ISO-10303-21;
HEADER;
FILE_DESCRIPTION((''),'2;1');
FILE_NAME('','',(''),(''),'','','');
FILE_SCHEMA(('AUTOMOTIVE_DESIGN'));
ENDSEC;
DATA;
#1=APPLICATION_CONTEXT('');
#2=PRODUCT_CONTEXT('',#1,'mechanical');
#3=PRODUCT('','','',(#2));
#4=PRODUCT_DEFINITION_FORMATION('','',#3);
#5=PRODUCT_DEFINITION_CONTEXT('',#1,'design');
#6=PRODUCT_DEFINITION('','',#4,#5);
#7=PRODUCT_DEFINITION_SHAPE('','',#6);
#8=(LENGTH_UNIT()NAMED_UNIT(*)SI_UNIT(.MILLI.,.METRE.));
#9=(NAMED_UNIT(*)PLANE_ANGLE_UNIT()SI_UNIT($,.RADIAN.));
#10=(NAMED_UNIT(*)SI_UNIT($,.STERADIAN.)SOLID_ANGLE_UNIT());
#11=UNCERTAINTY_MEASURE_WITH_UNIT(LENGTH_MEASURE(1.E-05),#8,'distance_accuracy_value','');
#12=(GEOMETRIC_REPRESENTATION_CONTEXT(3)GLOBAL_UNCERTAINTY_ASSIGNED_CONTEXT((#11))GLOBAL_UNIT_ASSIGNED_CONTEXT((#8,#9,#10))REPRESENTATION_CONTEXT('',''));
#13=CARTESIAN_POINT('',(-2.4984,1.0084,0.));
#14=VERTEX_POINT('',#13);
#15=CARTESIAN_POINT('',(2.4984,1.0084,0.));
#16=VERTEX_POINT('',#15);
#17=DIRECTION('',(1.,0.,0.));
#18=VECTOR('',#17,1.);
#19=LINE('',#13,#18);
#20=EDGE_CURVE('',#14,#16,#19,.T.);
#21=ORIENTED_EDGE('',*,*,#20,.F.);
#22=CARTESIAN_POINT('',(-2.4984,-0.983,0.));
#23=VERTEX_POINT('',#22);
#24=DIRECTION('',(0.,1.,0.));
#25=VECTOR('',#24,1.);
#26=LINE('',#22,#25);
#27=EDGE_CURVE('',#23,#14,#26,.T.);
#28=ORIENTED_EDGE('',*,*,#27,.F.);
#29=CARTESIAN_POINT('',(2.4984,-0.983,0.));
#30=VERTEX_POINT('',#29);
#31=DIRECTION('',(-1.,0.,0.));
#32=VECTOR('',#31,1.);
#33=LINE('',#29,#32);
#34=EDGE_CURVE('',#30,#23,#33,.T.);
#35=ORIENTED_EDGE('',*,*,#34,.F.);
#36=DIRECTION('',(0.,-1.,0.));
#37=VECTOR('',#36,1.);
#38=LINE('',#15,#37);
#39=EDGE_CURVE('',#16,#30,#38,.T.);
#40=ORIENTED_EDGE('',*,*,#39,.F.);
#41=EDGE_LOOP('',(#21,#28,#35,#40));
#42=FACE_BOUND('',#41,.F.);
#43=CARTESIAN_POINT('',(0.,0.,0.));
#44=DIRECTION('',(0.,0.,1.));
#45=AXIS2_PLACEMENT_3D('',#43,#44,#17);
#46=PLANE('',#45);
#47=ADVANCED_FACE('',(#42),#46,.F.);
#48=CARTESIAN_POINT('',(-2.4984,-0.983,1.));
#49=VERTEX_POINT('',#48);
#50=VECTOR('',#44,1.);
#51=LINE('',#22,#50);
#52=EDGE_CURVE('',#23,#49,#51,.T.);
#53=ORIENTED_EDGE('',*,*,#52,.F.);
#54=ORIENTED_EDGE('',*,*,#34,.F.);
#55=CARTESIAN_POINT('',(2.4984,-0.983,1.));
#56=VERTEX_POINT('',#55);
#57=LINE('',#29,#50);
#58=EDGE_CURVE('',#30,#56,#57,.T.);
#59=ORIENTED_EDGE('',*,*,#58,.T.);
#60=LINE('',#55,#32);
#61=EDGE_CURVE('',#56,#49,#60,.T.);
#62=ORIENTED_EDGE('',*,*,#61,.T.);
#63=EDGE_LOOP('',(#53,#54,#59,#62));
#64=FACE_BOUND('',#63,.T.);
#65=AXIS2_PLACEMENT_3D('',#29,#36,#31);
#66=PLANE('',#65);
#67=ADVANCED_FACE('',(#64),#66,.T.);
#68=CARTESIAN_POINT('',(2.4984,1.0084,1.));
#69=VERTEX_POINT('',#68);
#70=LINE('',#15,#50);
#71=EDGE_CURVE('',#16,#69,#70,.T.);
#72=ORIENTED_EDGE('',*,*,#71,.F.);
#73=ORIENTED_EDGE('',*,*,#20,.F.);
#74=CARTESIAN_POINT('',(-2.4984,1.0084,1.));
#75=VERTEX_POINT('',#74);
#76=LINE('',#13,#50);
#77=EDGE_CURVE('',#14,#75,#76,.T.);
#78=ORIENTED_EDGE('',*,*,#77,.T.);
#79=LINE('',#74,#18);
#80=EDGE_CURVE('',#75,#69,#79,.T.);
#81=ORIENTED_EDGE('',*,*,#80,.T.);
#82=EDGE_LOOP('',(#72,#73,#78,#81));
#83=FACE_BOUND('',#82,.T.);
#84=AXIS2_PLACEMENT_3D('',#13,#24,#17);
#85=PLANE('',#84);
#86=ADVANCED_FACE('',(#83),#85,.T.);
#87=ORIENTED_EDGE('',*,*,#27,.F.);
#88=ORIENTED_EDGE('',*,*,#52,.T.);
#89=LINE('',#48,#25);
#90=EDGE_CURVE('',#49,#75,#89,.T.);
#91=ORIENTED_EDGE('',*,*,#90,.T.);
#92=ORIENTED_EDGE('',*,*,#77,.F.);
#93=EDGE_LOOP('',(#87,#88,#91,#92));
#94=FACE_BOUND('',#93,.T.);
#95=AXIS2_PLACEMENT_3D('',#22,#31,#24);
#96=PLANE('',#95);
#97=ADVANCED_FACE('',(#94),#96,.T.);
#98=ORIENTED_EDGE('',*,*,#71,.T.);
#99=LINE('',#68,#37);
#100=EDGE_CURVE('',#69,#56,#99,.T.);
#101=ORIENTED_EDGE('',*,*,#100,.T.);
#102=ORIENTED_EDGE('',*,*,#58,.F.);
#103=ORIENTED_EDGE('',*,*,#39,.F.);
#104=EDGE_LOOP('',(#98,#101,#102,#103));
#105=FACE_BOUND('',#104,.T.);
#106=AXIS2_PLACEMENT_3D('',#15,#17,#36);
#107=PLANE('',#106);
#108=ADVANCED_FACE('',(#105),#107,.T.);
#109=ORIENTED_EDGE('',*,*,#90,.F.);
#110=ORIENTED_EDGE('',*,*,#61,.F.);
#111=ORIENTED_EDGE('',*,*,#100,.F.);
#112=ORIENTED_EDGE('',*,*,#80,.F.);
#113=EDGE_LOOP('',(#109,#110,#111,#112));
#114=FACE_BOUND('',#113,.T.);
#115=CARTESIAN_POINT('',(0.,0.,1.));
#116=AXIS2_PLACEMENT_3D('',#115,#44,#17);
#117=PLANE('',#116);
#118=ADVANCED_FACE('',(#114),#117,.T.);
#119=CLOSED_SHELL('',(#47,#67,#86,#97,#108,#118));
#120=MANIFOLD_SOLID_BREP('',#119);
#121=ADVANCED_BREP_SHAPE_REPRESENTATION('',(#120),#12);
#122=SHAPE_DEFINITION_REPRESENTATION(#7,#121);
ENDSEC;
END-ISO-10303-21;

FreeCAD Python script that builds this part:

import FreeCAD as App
import Part
import Sketcher

doc = App.newDocument("Part")
body = doc.addObject("PartDesign::Body", "Body")

# Sketch on XY plane
sketch1 = body.newObject("Sketcher::SketchObject", "Sketch")
sketch1.AttachmentSupport = (doc.getObject("XY_Plane"), [""])
sketch1.MapMode = "FlatFace"
sketch1.addGeometry([
    Part.LineSegment(App.Vector(2.5, 1, 0), App.Vector(-2.5, 1, 0)),
    Part.LineSegment(App.Vector(-2.5, 1, 0), App.Vector(-2.5, -1, 0)),
    Part.LineSegment(App.Vector(-2.5, -1, 0), App.Vector(2.5, -1, 0)),
    Part.LineSegment(App.Vector(2.5, -1, 0), App.Vector(2.5, 1, 0)),
], False)
sketch1.addConstraint([
    Sketcher.Constraint("Coincident", 0, 2, 1, 1),
    Sketcher.Constraint("Coincident", 1, 2, 2, 1),
    Sketcher.Constraint("Coincident", 2, 2, 3, 1),
    Sketcher.Constraint("Coincident", 3, 2, 0, 1),
    Sketcher.Constraint("Horizontal", 0),
    Sketcher.Constraint("Vertical", 1),
    Sketcher.Constraint("Horizontal", 2),
    Sketcher.Constraint("Vertical", 3),
    Sketcher.Constraint("DistanceX", 0, 2, 0, 1, 4.9968),
    Sketcher.Constraint("DistanceY", 1, 2, 1, 1, 1.9914),
    Sketcher.Constraint("DistanceY", 1, 2, -1, 1, 0.983),
    Sketcher.Constraint("DistanceX", 0, 2, -1, 1, 2.4984),
])
pad1 = body.newObject("PartDesign::Pad", "Pad")
pad1.Profile = sketch1
pad1.Length = 1

doc.recompute()
